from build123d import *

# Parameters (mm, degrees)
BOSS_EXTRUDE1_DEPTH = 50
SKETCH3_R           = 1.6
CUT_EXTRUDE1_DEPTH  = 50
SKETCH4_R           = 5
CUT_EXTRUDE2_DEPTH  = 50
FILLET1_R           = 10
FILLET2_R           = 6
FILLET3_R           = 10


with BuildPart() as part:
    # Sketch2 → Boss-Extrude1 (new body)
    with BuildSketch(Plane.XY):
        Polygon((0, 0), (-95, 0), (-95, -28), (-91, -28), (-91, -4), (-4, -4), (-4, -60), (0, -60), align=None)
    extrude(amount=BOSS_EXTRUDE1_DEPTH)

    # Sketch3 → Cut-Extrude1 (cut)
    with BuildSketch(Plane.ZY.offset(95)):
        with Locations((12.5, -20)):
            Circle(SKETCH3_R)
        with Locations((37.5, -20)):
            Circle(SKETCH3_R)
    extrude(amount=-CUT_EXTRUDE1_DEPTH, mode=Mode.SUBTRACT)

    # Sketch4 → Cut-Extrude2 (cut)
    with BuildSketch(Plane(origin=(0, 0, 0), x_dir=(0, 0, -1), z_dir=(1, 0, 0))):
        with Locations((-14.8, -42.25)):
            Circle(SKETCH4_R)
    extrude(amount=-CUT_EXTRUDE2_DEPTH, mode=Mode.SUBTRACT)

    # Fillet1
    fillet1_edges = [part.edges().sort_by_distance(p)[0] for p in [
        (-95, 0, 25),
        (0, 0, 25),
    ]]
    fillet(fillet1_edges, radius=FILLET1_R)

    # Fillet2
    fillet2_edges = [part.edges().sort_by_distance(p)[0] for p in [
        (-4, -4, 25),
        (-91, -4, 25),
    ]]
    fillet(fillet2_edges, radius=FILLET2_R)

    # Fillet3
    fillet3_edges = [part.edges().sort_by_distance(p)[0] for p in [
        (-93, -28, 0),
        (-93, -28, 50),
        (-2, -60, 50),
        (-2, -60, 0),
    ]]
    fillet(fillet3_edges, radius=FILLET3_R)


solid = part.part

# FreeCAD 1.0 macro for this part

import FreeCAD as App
import Part
import Sketcher

V = App.Vector


def edges_at(feature, points):
    """Names of the edges that pass closest to the given points."""
    edges = feature.Shape.Edges
    near = lambda p: min(range(len(edges)), key=lambda i: edges[i].distToShape(Part.Vertex(*p))[0])
    return sorted({f"Edge{near(p) + 1}" for p in points})


def add_polygon(sketch, points):
    """Adds a closed chain of lines whose ends are joined by coincident constraints."""
    first, n = sketch.GeometryCount, len(points)
    for a, b in zip(points, points[1:] + points[:1]):
        sketch.addGeometry(Part.LineSegment(App.Vector(*a, 0), App.Vector(*b, 0)), False)
    for i in range(n):
        sketch.addConstraint(Sketcher.Constraint("Coincident", first + i, 2, first + (i + 1) % n, 1))

doc = App.newDocument("Part")
body = doc.addObject("PartDesign::Body", "Body")

# Sketch on XY plane
sketch1 = body.newObject("Sketcher::SketchObject", "Sketch")
sketch1.AttachmentSupport = (doc.getObject("XY_Plane"), [""])
sketch1.MapMode = "FlatFace"
add_polygon(sketch1, [(0, 0), (-95, 0), (-95, -28), (-91, -28), (-91, -4), (-4, -4), (-4, -60), (0, -60)])  # lines 0-7
sketch1.addConstraint([
    Sketcher.Constraint("Horizontal", 0),
    Sketcher.Constraint("Vertical", 1),
    Sketcher.Constraint("Horizontal", 2),
    Sketcher.Constraint("Vertical", 3),
    Sketcher.Constraint("Horizontal", 4),
    Sketcher.Constraint("Vertical", 5),
    Sketcher.Constraint("Horizontal", 6),
    Sketcher.Constraint("Vertical", 7),
    Sketcher.Constraint("Coincident", 7, 2, -1, 1),
    Sketcher.Constraint("Equal", 2, 6),
    Sketcher.Constraint("DistanceX", 0, 2, 0, 1, 95.0),
    Sketcher.Constraint("DistanceX", 2, 1, 2, 2, 4.0),
    Sketcher.Constraint("DistanceY", 1, 2, 1, 1, 28.0),
    Sketcher.Constraint("DistanceY", 3, 1, 3, 2, 24.0),
    Sketcher.Constraint("DistanceY", 5, 2, 5, 1, 56.0),
])
pad1 = body.newObject("PartDesign::Pad", "Pad")
pad1.Profile = sketch1
pad1.Length = 50

# Sketch on YZ plane
sketch2 = body.newObject("Sketcher::SketchObject", "Sketch001")
sketch2.AttachmentSupport = (doc.getObject("YZ_Plane"), [""])
sketch2.MapMode = "FlatFace"
sketch2.AttachmentOffset = App.Placement(V(0, 0, -95), App.Rotation())
sketch2.addGeometry([
    Part.Circle(V(-20, 12.5, 0), V(0, 0, 1), 1.6),
    Part.Circle(V(-20, 37.5, 0), V(0, 0, 1), 1.6),
], False)
sketch2.addConstraint([
    Sketcher.Constraint("Equal", 0, 1),
    Sketcher.Constraint("Vertical", 0, 3, 1, 3),
    Sketcher.Constraint("Diameter", 0, 3.2),
    Sketcher.Constraint("DistanceX", 0, 3, -1, 1, 20.0),
    Sketcher.Constraint("DistanceY", 0, 3, 1, 3, 25.0),
    Sketcher.Constraint("DistanceY", -1, 1, 0, 3, 12.5),
])
pocket1 = body.newObject("PartDesign::Pocket", "Pocket")
pocket1.Profile = sketch2
pocket1.Length = 50
pocket1.Reversed = True

# Sketch on YZ plane
sketch3 = body.newObject("Sketcher::SketchObject", "Sketch002")
sketch3.AttachmentSupport = (doc.getObject("YZ_Plane"), [""])
sketch3.MapMode = "FlatFace"
sketch3.addGeometry(Part.Circle(V(-42, 15, 0), V(0, 0, 1), 5), False)
sketch3.addConstraint([
    Sketcher.Constraint("Diameter", 0, 10.0),
    Sketcher.Constraint("DistanceY", -1, 1, 0, 3, 14.8),
    Sketcher.Constraint("DistanceX", 0, 3, -1, 1, 42.25),
])
pocket2 = body.newObject("PartDesign::Pocket", "Pocket001")
pocket2.Profile = sketch3
pocket2.Length = 50
doc.recompute()

fillet = body.newObject("PartDesign::Fillet", "Fillet")
fillet.Base = (pocket2, edges_at(pocket2, [(-95, 0, 25), (0, 0, 25)]))
fillet.Radius = 10
doc.recompute()

fillet2 = body.newObject("PartDesign::Fillet", "Fillet001")
fillet2.Base = (fillet, edges_at(fillet, [(-4, -4, 25), (-91, -4, 25)]))
fillet2.Radius = 6
doc.recompute()

fillet3 = body.newObject("PartDesign::Fillet", "Fillet002")
fillet3.Base = (fillet2, edges_at(fillet2, [
    (-93, -28, 0),
    (-93, -28, 50),
    (-2, -60, 50),
    (-2, -60, 0),
]))
fillet3.Radius = 10

doc.recompute()
